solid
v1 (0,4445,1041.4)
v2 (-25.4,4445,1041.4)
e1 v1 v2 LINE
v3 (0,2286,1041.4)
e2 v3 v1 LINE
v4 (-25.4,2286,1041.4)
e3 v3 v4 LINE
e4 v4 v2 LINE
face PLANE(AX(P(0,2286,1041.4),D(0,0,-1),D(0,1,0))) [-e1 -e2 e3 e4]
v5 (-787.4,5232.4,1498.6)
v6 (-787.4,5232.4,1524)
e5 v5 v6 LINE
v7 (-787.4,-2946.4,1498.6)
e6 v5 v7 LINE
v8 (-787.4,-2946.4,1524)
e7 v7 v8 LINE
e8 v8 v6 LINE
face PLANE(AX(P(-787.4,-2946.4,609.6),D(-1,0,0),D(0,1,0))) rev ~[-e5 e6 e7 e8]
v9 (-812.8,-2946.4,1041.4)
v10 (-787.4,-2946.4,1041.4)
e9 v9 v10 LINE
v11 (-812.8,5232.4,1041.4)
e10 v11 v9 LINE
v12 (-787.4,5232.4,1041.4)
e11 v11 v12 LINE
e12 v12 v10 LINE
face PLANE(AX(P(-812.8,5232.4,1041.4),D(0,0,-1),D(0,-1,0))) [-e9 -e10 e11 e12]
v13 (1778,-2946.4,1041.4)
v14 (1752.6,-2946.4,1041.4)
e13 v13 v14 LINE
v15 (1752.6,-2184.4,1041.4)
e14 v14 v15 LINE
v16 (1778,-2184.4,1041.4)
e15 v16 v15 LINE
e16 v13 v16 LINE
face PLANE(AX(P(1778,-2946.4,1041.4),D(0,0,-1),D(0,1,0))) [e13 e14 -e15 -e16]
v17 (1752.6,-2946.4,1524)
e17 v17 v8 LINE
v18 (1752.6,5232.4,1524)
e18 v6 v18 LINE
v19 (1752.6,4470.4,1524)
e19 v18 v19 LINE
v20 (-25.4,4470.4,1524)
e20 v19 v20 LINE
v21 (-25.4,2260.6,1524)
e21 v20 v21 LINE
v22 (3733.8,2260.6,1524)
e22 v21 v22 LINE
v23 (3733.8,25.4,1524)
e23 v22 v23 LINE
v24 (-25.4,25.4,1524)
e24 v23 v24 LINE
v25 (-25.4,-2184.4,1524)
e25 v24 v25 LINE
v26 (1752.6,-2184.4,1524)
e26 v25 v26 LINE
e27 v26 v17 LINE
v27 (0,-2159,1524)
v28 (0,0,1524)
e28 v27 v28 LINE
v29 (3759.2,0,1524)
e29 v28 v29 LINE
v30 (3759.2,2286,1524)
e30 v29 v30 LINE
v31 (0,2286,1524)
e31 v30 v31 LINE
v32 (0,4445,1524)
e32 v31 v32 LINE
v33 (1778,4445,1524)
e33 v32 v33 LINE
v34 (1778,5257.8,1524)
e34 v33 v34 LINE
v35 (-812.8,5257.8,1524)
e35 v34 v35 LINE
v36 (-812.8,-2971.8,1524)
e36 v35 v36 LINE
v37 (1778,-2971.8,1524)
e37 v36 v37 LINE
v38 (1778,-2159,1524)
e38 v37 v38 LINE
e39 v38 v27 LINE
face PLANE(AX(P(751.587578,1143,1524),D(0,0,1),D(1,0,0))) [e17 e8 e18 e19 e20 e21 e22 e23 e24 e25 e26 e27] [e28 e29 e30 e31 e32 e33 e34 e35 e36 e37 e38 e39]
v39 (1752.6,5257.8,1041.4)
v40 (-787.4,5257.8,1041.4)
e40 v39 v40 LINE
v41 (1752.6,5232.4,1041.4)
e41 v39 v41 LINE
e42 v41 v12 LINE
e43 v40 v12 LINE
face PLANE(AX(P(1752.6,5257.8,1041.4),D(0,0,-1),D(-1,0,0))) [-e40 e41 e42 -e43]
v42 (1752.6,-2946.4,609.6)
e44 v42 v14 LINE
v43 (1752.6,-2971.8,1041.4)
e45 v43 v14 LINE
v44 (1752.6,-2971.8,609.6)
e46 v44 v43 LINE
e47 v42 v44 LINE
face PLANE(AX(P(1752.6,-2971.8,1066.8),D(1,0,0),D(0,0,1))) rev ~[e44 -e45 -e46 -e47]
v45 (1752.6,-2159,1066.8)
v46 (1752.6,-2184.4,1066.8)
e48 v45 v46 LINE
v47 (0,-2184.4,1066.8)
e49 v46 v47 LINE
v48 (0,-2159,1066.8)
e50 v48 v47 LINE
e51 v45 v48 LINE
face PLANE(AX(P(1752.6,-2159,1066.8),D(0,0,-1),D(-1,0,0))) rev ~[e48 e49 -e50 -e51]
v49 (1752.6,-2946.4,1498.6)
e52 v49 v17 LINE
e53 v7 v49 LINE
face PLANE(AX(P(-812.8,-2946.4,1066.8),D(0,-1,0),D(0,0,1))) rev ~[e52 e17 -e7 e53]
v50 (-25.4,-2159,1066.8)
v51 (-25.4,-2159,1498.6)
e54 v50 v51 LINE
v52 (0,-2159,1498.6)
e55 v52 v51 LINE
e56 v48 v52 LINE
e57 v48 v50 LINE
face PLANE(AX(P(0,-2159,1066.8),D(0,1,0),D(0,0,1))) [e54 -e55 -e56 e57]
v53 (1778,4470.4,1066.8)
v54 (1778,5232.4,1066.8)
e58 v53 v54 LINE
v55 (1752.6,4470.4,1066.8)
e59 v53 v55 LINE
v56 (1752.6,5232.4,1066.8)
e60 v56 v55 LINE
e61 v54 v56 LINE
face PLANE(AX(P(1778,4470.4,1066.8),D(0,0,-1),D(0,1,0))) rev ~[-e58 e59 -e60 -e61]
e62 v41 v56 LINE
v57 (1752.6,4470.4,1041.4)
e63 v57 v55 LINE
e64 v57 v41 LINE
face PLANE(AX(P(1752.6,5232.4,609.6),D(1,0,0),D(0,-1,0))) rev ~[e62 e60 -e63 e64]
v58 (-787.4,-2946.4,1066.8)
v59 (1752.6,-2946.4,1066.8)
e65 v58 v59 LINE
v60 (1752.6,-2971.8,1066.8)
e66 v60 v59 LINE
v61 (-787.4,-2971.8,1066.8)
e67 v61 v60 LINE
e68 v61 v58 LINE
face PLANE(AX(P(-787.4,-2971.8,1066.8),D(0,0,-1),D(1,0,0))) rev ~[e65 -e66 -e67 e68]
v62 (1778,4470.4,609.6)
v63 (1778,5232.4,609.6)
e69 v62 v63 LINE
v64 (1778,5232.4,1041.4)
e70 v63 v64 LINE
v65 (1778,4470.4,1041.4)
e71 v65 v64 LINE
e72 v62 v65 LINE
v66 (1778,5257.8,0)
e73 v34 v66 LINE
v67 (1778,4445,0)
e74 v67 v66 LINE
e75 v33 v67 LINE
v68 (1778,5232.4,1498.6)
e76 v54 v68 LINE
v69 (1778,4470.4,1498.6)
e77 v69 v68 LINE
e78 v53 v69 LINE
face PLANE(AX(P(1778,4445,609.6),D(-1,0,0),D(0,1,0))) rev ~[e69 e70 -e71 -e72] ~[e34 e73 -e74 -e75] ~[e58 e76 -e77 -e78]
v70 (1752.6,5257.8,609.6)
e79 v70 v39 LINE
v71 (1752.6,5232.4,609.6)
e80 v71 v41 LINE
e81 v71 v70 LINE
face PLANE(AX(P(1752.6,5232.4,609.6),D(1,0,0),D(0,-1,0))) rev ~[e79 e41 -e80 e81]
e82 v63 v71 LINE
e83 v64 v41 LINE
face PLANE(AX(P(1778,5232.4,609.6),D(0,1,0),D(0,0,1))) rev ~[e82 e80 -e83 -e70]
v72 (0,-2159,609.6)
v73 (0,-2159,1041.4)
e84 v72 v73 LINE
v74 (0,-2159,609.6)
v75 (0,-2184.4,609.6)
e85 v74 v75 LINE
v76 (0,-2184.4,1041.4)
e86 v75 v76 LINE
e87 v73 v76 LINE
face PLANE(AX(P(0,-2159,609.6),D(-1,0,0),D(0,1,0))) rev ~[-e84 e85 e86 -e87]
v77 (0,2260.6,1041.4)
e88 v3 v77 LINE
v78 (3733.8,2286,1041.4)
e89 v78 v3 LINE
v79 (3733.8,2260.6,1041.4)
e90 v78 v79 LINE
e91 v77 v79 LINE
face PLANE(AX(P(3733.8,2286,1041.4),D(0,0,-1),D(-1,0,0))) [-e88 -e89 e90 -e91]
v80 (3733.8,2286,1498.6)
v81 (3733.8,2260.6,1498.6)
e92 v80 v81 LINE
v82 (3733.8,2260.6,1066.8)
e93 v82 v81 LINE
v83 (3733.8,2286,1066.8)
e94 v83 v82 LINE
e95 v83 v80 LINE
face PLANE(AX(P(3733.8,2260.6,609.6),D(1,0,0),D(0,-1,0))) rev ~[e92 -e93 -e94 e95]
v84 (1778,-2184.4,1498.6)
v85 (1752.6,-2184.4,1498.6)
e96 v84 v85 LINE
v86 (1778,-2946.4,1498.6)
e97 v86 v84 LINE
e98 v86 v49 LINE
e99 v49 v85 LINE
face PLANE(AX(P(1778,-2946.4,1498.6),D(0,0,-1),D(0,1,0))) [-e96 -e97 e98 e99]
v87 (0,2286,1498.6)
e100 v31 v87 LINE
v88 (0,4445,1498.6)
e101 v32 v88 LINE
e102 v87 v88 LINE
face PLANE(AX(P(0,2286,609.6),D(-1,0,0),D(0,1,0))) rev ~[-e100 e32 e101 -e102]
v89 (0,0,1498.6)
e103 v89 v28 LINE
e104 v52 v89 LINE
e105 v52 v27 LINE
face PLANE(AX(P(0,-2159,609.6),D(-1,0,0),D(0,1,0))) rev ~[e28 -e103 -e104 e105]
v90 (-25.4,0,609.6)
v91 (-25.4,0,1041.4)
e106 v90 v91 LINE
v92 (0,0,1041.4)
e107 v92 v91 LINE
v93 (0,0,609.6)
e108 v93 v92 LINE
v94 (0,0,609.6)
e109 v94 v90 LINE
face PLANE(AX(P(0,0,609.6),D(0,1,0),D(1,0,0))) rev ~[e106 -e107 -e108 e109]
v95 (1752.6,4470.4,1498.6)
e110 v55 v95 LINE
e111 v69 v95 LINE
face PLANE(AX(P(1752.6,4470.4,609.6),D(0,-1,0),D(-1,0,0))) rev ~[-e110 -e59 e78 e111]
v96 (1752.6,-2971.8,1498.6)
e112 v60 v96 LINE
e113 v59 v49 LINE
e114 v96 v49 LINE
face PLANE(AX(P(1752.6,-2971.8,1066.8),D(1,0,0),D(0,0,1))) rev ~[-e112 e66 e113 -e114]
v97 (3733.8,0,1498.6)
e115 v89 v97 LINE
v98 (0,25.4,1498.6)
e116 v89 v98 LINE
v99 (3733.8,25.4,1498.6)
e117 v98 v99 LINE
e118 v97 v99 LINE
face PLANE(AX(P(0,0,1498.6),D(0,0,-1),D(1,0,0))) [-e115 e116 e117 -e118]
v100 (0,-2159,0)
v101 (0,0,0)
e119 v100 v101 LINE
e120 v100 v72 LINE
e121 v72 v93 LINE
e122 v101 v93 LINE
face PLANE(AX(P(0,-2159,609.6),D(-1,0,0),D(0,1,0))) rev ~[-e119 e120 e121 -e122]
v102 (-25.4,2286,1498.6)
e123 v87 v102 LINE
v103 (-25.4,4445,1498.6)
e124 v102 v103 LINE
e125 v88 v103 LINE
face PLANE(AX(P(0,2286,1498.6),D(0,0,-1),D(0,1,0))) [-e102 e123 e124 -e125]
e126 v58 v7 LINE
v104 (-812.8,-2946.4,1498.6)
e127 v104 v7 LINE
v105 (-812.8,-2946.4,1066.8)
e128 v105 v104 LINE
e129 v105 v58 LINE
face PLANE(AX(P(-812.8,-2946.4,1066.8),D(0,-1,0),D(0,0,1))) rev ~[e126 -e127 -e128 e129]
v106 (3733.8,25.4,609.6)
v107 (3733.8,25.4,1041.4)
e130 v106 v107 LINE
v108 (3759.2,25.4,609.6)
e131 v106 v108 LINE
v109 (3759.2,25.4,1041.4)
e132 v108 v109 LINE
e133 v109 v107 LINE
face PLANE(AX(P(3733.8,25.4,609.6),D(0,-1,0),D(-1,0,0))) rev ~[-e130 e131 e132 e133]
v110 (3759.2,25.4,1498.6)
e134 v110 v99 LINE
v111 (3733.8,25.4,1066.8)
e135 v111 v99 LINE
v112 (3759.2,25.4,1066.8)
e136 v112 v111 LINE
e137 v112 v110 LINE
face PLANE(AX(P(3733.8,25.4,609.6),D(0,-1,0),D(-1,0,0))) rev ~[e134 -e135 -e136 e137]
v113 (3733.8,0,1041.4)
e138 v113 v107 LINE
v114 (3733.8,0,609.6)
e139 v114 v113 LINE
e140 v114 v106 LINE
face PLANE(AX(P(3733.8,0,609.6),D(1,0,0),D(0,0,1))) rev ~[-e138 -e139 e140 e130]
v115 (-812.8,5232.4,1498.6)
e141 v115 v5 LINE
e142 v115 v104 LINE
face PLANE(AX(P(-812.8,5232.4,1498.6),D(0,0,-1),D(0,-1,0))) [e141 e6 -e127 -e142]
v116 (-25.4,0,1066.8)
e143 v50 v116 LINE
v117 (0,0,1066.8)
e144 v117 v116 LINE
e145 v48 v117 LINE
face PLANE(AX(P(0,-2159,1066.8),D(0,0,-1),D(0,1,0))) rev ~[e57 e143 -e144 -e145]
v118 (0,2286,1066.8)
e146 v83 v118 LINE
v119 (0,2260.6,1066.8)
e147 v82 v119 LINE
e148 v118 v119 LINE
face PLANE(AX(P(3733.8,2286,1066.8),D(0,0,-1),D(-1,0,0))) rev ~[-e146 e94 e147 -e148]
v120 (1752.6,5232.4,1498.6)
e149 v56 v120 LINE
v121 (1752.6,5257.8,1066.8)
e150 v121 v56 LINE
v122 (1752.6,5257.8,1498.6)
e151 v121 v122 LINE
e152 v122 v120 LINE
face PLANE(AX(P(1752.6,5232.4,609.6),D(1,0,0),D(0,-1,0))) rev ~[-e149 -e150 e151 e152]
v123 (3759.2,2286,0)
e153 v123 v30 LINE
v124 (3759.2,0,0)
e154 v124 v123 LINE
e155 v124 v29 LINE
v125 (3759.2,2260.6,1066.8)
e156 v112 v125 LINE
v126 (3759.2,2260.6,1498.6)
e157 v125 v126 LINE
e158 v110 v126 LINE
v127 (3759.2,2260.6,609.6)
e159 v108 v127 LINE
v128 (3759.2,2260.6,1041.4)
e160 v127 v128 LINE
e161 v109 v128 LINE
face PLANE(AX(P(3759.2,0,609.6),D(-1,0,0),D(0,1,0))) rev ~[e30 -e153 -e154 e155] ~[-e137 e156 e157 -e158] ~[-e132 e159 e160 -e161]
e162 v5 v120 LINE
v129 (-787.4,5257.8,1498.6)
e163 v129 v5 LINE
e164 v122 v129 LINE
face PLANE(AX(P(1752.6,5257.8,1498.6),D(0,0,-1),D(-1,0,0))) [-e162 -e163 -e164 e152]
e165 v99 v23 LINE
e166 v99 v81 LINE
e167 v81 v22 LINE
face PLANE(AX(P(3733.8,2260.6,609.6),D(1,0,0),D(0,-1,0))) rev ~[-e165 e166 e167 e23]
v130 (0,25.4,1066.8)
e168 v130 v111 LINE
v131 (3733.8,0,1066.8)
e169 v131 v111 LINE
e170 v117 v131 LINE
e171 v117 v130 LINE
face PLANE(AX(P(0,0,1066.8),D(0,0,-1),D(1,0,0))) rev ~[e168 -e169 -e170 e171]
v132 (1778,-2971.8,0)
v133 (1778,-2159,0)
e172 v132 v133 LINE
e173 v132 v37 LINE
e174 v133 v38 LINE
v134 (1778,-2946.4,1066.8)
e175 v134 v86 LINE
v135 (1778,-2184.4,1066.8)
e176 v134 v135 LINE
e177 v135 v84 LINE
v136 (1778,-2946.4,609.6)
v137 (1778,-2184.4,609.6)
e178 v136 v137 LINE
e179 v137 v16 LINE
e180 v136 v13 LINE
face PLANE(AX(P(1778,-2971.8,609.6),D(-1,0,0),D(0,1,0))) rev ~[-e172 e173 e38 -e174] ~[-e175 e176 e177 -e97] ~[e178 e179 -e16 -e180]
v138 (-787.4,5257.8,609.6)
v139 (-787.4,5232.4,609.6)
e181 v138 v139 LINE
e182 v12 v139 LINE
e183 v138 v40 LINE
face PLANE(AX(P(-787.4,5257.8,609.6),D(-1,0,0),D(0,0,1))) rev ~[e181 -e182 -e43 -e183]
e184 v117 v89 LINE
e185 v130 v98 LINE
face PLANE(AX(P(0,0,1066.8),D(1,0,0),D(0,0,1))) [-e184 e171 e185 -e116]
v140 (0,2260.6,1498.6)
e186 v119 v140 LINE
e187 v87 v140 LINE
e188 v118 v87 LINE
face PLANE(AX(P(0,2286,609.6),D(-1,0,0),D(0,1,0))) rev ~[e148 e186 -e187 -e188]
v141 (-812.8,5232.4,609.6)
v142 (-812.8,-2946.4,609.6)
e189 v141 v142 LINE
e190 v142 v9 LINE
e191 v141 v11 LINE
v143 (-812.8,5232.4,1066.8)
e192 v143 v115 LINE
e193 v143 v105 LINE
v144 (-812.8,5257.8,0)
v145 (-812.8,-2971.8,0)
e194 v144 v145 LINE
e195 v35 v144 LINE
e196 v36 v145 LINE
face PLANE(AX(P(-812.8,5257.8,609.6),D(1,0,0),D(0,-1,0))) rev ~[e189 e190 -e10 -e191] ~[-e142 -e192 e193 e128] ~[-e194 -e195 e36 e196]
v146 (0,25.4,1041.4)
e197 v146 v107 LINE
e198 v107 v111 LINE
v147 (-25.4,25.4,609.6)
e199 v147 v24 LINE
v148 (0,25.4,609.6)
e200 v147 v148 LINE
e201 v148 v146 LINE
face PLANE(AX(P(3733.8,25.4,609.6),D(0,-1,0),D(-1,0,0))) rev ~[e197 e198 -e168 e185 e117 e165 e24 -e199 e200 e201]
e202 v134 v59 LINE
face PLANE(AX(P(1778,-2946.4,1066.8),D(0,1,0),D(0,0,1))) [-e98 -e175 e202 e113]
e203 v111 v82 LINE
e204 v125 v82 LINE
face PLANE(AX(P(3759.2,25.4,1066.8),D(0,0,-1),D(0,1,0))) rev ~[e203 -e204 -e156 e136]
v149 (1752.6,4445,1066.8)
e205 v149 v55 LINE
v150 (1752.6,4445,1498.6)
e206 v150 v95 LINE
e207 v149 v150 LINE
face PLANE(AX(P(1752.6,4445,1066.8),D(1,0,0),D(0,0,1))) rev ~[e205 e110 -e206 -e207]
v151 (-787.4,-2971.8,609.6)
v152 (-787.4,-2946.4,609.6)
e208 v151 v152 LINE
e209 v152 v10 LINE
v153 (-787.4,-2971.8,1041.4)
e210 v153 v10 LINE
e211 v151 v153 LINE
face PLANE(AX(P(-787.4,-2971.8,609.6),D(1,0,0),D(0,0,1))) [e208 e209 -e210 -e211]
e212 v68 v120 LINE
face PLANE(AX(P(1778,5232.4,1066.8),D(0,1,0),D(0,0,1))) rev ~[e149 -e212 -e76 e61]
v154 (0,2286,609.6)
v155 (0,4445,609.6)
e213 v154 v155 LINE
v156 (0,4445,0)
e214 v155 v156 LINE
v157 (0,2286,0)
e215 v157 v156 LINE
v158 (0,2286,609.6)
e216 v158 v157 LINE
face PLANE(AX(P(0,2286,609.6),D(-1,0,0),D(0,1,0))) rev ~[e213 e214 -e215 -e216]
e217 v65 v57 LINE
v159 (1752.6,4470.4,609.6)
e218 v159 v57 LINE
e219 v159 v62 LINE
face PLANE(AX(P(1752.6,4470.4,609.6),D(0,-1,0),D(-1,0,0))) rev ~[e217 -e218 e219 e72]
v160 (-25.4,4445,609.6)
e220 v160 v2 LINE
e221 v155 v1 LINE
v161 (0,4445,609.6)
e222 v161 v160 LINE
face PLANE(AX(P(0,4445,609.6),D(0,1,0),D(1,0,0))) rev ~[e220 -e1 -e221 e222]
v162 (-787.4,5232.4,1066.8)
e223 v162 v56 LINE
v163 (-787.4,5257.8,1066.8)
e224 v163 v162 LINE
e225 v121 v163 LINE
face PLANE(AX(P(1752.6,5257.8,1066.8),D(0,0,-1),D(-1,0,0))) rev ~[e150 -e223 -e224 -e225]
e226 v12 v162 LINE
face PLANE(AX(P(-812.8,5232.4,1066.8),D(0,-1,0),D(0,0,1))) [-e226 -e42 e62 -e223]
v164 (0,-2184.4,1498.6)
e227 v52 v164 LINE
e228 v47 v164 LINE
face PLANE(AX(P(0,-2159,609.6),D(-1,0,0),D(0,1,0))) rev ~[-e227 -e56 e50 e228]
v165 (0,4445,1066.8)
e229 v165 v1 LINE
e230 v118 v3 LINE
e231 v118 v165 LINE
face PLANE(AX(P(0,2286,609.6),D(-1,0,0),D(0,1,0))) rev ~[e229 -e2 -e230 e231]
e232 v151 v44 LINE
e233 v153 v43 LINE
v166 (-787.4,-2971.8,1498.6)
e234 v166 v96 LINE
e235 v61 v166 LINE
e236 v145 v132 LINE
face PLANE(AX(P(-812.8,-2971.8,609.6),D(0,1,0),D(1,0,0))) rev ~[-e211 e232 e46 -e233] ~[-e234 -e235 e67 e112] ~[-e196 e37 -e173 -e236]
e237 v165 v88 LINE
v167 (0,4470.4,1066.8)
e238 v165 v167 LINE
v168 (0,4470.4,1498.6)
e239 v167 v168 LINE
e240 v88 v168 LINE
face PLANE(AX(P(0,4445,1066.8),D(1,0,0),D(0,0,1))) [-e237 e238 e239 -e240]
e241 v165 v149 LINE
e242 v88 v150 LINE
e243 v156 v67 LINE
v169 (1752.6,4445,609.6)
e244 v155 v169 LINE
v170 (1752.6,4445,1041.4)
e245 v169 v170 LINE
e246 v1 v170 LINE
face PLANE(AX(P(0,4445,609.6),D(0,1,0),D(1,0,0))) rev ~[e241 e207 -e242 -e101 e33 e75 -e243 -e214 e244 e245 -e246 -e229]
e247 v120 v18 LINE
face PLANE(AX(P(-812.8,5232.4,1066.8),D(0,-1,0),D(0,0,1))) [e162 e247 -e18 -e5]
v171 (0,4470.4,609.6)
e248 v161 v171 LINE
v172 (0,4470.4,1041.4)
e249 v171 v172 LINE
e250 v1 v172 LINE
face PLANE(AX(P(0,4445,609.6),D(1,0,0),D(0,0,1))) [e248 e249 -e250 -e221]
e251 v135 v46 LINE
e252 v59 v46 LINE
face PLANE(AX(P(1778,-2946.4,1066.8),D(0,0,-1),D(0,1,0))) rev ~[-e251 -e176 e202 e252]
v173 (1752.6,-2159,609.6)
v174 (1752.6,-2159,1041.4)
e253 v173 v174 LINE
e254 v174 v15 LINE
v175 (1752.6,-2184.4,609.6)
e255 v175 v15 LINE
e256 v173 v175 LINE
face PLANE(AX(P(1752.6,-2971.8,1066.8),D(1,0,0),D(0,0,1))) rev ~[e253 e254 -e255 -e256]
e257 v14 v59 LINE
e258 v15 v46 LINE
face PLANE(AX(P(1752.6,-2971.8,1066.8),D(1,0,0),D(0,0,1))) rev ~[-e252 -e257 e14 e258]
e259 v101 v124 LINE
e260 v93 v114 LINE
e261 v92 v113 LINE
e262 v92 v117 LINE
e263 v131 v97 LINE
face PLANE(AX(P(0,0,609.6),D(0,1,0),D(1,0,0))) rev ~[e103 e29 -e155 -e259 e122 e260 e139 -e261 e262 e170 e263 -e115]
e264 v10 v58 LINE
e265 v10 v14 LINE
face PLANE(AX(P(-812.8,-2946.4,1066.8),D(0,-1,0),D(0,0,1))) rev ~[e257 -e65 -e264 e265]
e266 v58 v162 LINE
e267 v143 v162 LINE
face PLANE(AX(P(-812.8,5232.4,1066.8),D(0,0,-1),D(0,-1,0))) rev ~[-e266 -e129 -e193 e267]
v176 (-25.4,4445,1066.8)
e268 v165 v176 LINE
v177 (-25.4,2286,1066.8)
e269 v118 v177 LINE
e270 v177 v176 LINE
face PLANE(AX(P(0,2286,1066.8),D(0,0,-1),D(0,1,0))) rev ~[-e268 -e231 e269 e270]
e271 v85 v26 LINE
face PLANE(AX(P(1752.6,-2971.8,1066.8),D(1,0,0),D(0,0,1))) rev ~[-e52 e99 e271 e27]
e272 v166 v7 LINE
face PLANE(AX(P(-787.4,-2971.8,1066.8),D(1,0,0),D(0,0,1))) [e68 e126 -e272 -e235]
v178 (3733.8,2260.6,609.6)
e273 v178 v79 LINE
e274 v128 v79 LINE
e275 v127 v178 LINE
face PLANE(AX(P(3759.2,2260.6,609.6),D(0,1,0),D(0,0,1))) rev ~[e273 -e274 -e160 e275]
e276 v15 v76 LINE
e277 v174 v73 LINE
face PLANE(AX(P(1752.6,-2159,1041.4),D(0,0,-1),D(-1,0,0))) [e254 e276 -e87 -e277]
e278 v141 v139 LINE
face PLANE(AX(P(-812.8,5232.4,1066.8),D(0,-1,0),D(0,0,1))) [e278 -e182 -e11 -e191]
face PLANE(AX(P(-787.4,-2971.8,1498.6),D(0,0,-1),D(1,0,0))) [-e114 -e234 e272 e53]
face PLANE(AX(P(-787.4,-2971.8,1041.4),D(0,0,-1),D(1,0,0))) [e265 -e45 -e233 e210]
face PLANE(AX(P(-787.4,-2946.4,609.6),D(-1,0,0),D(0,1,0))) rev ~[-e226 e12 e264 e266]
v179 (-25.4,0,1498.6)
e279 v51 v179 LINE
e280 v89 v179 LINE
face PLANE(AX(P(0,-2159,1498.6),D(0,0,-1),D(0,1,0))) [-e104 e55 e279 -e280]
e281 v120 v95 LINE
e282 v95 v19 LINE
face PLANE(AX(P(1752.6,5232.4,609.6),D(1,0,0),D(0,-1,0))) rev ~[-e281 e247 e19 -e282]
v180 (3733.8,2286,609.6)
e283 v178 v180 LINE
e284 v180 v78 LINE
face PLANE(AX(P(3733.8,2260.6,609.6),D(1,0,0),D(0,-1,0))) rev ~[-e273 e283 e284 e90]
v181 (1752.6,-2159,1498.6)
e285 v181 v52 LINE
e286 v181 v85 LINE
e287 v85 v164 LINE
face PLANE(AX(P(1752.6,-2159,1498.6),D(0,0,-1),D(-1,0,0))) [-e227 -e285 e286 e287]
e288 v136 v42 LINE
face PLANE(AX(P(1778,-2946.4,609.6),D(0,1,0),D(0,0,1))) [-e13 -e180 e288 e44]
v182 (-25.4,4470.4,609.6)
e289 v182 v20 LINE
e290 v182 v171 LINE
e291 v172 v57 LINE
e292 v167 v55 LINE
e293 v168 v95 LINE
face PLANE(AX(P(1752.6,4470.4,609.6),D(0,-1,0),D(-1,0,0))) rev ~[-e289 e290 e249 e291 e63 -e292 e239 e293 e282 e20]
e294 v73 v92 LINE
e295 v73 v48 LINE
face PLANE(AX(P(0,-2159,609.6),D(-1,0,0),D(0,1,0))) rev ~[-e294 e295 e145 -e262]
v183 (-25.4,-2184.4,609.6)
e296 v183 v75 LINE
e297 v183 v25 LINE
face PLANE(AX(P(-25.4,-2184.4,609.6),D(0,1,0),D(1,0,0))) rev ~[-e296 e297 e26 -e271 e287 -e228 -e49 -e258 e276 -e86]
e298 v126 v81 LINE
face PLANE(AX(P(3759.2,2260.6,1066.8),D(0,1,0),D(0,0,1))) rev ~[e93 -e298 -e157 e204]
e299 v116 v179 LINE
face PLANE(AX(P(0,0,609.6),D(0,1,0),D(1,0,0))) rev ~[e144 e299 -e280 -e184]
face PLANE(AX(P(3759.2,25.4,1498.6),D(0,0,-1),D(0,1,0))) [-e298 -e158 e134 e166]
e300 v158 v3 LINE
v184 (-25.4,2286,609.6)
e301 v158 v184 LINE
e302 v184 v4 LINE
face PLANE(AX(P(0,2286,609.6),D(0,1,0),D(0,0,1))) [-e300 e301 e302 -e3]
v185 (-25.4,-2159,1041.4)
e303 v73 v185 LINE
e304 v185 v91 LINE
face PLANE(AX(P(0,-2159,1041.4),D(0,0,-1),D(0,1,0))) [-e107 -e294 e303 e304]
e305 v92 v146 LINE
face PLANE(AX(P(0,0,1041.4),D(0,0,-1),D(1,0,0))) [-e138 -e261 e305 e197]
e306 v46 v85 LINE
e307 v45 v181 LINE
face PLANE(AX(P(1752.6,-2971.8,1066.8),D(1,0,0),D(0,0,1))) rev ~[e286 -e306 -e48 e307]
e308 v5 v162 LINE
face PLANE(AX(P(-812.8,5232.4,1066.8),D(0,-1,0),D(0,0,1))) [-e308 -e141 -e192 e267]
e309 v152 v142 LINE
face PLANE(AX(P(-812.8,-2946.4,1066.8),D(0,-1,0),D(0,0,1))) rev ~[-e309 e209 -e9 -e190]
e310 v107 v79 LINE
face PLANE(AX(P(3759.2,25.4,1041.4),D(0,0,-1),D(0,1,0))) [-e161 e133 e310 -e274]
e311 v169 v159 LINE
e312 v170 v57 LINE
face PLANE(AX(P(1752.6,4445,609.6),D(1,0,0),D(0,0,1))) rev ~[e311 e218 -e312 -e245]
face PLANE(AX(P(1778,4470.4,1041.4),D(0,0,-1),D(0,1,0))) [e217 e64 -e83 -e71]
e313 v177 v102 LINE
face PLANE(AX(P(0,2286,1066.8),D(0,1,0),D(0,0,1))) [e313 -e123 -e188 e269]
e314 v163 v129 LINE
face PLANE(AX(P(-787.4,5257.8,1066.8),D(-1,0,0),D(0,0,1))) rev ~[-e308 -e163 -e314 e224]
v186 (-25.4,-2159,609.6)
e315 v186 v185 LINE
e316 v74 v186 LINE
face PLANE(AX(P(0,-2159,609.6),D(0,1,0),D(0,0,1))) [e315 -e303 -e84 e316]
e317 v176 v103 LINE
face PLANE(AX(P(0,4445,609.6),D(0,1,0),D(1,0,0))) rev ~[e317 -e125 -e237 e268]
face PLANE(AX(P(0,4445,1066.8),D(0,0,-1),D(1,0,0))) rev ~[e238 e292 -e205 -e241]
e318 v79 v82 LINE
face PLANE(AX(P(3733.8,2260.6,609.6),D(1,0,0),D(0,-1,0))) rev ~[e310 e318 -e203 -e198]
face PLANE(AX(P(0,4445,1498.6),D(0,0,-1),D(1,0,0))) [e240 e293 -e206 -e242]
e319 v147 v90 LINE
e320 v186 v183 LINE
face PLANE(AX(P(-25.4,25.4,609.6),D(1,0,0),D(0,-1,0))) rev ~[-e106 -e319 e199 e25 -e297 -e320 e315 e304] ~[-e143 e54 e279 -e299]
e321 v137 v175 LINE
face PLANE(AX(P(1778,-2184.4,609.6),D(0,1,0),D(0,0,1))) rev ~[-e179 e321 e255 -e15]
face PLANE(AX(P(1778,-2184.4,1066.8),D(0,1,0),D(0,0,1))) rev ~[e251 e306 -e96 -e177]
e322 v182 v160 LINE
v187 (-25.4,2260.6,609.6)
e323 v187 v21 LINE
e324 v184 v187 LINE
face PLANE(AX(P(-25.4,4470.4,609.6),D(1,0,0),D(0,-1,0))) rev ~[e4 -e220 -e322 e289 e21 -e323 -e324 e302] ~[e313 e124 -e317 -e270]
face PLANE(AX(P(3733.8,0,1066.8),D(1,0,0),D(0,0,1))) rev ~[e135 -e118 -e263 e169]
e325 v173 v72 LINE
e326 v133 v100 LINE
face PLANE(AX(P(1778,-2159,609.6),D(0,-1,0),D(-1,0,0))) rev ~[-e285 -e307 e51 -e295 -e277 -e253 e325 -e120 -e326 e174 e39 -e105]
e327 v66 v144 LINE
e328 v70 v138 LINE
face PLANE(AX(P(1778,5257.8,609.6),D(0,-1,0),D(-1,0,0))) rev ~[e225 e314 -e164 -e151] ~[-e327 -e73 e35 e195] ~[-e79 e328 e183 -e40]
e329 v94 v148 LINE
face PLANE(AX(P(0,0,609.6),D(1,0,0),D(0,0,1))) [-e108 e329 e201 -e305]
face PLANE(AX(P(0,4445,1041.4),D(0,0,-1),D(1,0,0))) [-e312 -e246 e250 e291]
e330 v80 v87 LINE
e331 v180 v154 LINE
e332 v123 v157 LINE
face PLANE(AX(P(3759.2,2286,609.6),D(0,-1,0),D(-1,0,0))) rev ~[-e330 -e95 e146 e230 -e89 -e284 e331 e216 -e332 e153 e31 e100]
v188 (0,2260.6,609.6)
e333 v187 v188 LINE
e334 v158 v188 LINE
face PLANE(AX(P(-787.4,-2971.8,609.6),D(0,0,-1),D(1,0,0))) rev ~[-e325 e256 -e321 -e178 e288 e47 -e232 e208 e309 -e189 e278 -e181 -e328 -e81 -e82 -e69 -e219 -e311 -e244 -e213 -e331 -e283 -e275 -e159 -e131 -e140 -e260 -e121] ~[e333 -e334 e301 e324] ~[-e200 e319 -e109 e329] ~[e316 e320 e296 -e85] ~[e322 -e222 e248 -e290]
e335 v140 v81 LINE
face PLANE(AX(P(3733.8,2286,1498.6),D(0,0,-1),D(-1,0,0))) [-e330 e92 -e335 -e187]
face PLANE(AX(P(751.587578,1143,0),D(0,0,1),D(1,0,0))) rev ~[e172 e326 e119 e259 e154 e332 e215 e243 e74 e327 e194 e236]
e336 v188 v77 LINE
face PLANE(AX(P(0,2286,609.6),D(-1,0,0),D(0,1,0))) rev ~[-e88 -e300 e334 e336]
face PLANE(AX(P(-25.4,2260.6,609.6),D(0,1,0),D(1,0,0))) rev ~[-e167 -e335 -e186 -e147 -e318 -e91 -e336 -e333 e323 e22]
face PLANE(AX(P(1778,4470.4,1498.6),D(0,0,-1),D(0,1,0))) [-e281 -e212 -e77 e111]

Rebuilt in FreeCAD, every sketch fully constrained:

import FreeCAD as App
import Part
import Sketcher
from FreeCAD import Vector
Q = App.Units.Quantity


def add_polygon(sketch, points):
    """Adds a closed chain of lines whose ends are joined by coincident constraints."""
    first, n = sketch.GeometryCount, len(points)
    for a, b in zip(points, points[1:] + points[:1]):
        sketch.addGeometry(Part.LineSegment(App.Vector(*a, 0), App.Vector(*b, 0)), False)
    for i in range(n):
        sketch.addConstraint(Sketcher.Constraint("Coincident", first + i, 2, first + (i + 1) % n, 1))

doc = App.newDocument("Part")
body = doc.addObject("PartDesign::Body", "Body")

sketch1 = body.newObject("Sketcher::SketchObject", "Sketch")
sketch1.AttachmentSupport = (doc.getObject("XY_Plane"), [""])
sketch1.MapMode = "FlatFace"
add_polygon(sketch1, [(0, -2159), (0, 0), (3759.2, 0), (3759.2, 2286), (0, 2286), (0, 4445), (1778, 4445), (1778, 5257.8), (-812.8, 5257.8), (-812.8, -2971.8), (1778, -2971.8), (1778, -2159)])
sketch1.addConstraint(Sketcher.Constraint("Vertical", 0))
sketch1.addConstraint(Sketcher.Constraint("Horizontal", 1))
sketch1.addConstraint(Sketcher.Constraint("Vertical", 2))
sketch1.addConstraint(Sketcher.Constraint("Horizontal", 3))
sketch1.addConstraint(Sketcher.Constraint("Vertical", 4))
sketch1.addConstraint(Sketcher.Constraint("Horizontal", 5))
sketch1.addConstraint(Sketcher.Constraint("Vertical", 6))
sketch1.addConstraint(Sketcher.Constraint("Horizontal", 7))
sketch1.addConstraint(Sketcher.Constraint("Vertical", 8))
sketch1.addConstraint(Sketcher.Constraint("Horizontal", 9))
sketch1.addConstraint(Sketcher.Constraint("Vertical", 10))
sketch1.addConstraint(Sketcher.Constraint("Horizontal", 11))
sketch1.addConstraint(Sketcher.Constraint("Coincident", 0, 2, -1, 1))
sketch1.addConstraint(Sketcher.Constraint("PointOnObject", 3, 2, -2))
sketch1.addConstraint(Sketcher.Constraint("Vertical", 6, 2, 9, 2))
sketch1.addConstraint(Sketcher.Constraint("Equal", 0, 4))
sketch1.addConstraint(Sketcher.Constraint("Equal", 6, 10))
sketch1.addConstraint(Sketcher.Constraint("DistanceX", 1, 1, 1, 2, Q("148 in")))
sketch1.addConstraint(Sketcher.Constraint("DistanceX", 5, 1, 5, 2, Q("70 in")))
sketch1.addConstraint(Sketcher.Constraint("DistanceX", 7, 2, 7, 1, Q("102 in")))
sketch1.addConstraint(Sketcher.Constraint("DistanceY", 0, 1, 0, 2, Q("85 in")))
sketch1.addConstraint(Sketcher.Constraint("DistanceY", 2, 1, 2, 2, Q("90 in")))
sketch1.addConstraint(Sketcher.Constraint("DistanceY", 6, 1, 6, 2, Q("32 in")))
pad1 = body.newObject("PartDesign::Pad", "Pad")
pad1.Profile = sketch1
pad1.Length = Q("24 in")

sketch2 = body.newObject("Sketcher::SketchObject", "Sketch001")
sketch2.AttachmentSupport = (doc.getObject("XY_Plane"), [""])
sketch2.MapMode = "FlatFace"
sketch2.AttachmentOffset = App.Placement(Vector(0, 0, 24 * 25.4), App.Rotation())
add_polygon(sketch2, [(-812.8, -2971.8), (1778, -2971.8), (1778, -2159), (0, -2159), (0, 0), (3759.2, 0), (3759.2, 2286), (0, 2286), (0, 4445), (1778, 4445), (1778, 5257.8), (-812.8, 5257.8)])
add_polygon(sketch2, [(1752.6, -2184.4), (1752.6, -2946.4), (-787.4, -2946.4), (-787.4, 5232.4), (1752.6, 5232.4), (1752.6, 4470.4), (-25.4, 4470.4), (-25.4, 2260.6), (3733.8, 2260.6), (3733.8, 25.4), (-25.4, 25.4), (-25.4, -2184.4)])
sketch2.addConstraint(Sketcher.Constraint("Horizontal", 0))
sketch2.addConstraint(Sketcher.Constraint("Vertical", 1))
sketch2.addConstraint(Sketcher.Constraint("Horizontal", 2))
sketch2.addConstraint(Sketcher.Constraint("Vertical", 3))
sketch2.addConstraint(Sketcher.Constraint("Horizontal", 4))
sketch2.addConstraint(Sketcher.Constraint("Vertical", 5))
sketch2.addConstraint(Sketcher.Constraint("Horizontal", 6))
sketch2.addConstraint(Sketcher.Constraint("Vertical", 7))
sketch2.addConstraint(Sketcher.Constraint("Horizontal", 8))
sketch2.addConstraint(Sketcher.Constraint("Vertical", 9))
sketch2.addConstraint(Sketcher.Constraint("Horizontal", 10))
sketch2.addConstraint(Sketcher.Constraint("Vertical", 11))
sketch2.addConstraint(Sketcher.Constraint("Vertical", 12))
sketch2.addConstraint(Sketcher.Constraint("Horizontal", 13))
sketch2.addConstraint(Sketcher.Constraint("Vertical", 14))
sketch2.addConstraint(Sketcher.Constraint("Horizontal", 15))
sketch2.addConstraint(Sketcher.Constraint("Vertical", 16))
sketch2.addConstraint(Sketcher.Constraint("Horizontal", 17))
sketch2.addConstraint(Sketcher.Constraint("Vertical", 18))
sketch2.addConstraint(Sketcher.Constraint("Horizontal", 19))
sketch2.addConstraint(Sketcher.Constraint("Vertical", 20))
sketch2.addConstraint(Sketcher.Constraint("Horizontal", 21))
sketch2.addConstraint(Sketcher.Constraint("Vertical", 22))
sketch2.addConstraint(Sketcher.Constraint("Horizontal", 23))
sketch2.addConstraint(Sketcher.Constraint("Coincident", 3, 2, -1, 1))
sketch2.addConstraint(Sketcher.Constraint("PointOnObject", 6, 2, -2))
sketch2.addConstraint(Sketcher.Constraint("Vertical", 1, 2, 8, 2))
sketch2.addConstraint(Sketcher.Constraint("Vertical", 12, 2, 15, 2))
sketch2.addConstraint(Sketcher.Constraint("Vertical", 18, 2, 21, 2))
sketch2.addConstraint(Sketcher.Constraint("Equal", 8, 17))
sketch2.addConstraint(Sketcher.Constraint("Equal", 6, 19))
sketch2.addConstraint(Sketcher.Constraint("Equal", 3, 7))
sketch2.addConstraint(Sketcher.Constraint("Equal", 1, 9))
sketch2.addConstraint(Sketcher.Constraint("Equal", 12, 16))
sketch2.addConstraint(Sketcher.Constraint("Equal", 18, 22))
sketch2.addConstraint(Sketcher.Constraint("DistanceX", 0, 1, 0, 2, Q("102 in")))
sketch2.addConstraint(Sketcher.Constraint("DistanceX", 2, 2, 2, 1, Q("70 in")))
sketch2.addConstraint(Sketcher.Constraint("DistanceX", 4, 1, 4, 2, Q("148 in")))
sketch2.addConstraint(Sketcher.Constraint("DistanceX", 13, 2, 13, 1, Q("100 in")))
sketch2.addConstraint(Sketcher.Constraint("DistanceY", 1, 1, 1, 2, Q("32 in")))
sketch2.addConstraint(Sketcher.Constraint("DistanceY", 3, 1, 3, 2, Q("85 in")))
sketch2.addConstraint(Sketcher.Constraint("DistanceY", 5, 1, 5, 2, Q("90 in")))
sketch2.addConstraint(Sketcher.Constraint("DistanceY", 12, 2, 12, 1, Q("30 in")))
sketch2.addConstraint(Sketcher.Constraint("DistanceY", 14, 1, 14, 2, Q("322 in")))
sketch2.addConstraint(Sketcher.Constraint("DistanceY", 18, 2, 18, 1, Q("87 in")))
sketch2.addConstraint(Sketcher.Constraint("DistanceX", -1, 1, 12, 2, Q("69 in")))
sketch2.addConstraint(Sketcher.Constraint("DistanceY", 12, 2, -1, 1, Q("116 in")))
pad2 = body.newObject("PartDesign::Pad", "Pad001")
pad2.Profile = sketch2
pad2.Length = Q("36 in")

sketch3 = body.newObject("Sketcher::SketchObject", "Sketch002")
sketch3.AttachmentSupport = (doc.getObject("YZ_Plane"), [""])
sketch3.MapMode = "FlatFace"
sketch3.AttachmentOffset = App.Placement(Vector(0, 0, -32 * 25.4), App.Rotation())
add_polygon(sketch3, [(5232.4, 1498.6), (5232.4, 1066.8), (-2946.4, 1066.8), (-2946.4, 1498.6)])
add_polygon(sketch3, [(5232.4, 1041.4), (5232.4, 609.6), (-2946.4, 609.6), (-2946.4, 1041.4)])
sketch3.addConstraint(Sketcher.Constraint("Vertical", 0))
sketch3.addConstraint(Sketcher.Constraint("Horizontal", 1))
sketch3.addConstraint(Sketcher.Constraint("Vertical", 2))
sketch3.addConstraint(Sketcher.Constraint("Horizontal", 3))
sketch3.addConstraint(Sketcher.Constraint("Vertical", 4))
sketch3.addConstraint(Sketcher.Constraint("Horizontal", 5))
sketch3.addConstraint(Sketcher.Constraint("Vertical", 6))
sketch3.addConstraint(Sketcher.Constraint("Horizontal", 7))
sketch3.addConstraint(Sketcher.Constraint("Vertical", 3, 2, 4, 2))
sketch3.addConstraint(Sketcher.Constraint("Vertical", 2, 2, 5, 2))
sketch3.addConstraint(Sketcher.Constraint("Equal", 2, 4))
sketch3.addConstraint(Sketcher.Constraint("DistanceX", 1, 2, 1, 1, Q("322 in")))
sketch3.addConstraint(Sketcher.Constraint("DistanceY", 0, 2, 0, 1, Q("17 in")))
sketch3.addConstraint(Sketcher.Constraint("DistanceX", -1, 1, 0, 2, Q("206 in")))
sketch3.addConstraint(Sketcher.Constraint("DistanceY", -1, 1, 0, 2, Q("42 in")))
sketch3.addConstraint(Sketcher.Constraint("DistanceY", -1, 1, 4, 2, Q("24 in")))
pocket1 = body.newObject("PartDesign::Pocket", "Pocket")
pocket1.Profile = sketch3
pocket1.Length = Q("2 in")
pocket1.Reversed = True

sketch4 = body.newObject("Sketcher::SketchObject", "Sketch003")
sketch4.AttachmentSupport = (doc.getObject("XZ_Plane"), [""])
sketch4.MapMode = "FlatFace"
sketch4.AttachmentOffset = App.Placement(Vector(0, 0, 117 * 25.4), App.Rotation())
add_polygon(sketch4, [(-787.4, 1498.6), (-787.4, 1066.8), (1752.6, 1066.8), (1752.6, 1498.6)])
add_polygon(sketch4, [(-787.4, 1041.4), (-787.4, 609.6), (1752.6, 609.6), (1752.6, 1041.4)])
sketch4.addConstraint(Sketcher.Constraint("Vertical", 0))
sketch4.addConstraint(Sketcher.Constraint("Horizontal", 1))
sketch4.addConstraint(Sketcher.Constraint("Vertical", 2))
sketch4.addConstraint(Sketcher.Constraint("Horizontal", 3))
sketch4.addConstraint(Sketcher.Constraint("Vertical", 4))
sketch4.addConstraint(Sketcher.Constraint("Horizontal", 5))
sketch4.addConstraint(Sketcher.Constraint("Vertical", 6))
sketch4.addConstraint(Sketcher.Constraint("Horizontal", 7))
sketch4.addConstraint(Sketcher.Constraint("Vertical", 3, 2, 4, 2))
sketch4.addConstraint(Sketcher.Constraint("Vertical", 2, 2, 5, 2))
sketch4.addConstraint(Sketcher.Constraint("Equal", 2, 4))
sketch4.addConstraint(Sketcher.Constraint("DistanceX", 1, 1, 1, 2, Q("100 in")))
sketch4.addConstraint(Sketcher.Constraint("DistanceY", 0, 2, 0, 1, Q("17 in")))
sketch4.addConstraint(Sketcher.Constraint("DistanceX", 0, 2, -1, 1, Q("31 in")))
sketch4.addConstraint(Sketcher.Constraint("DistanceY", -1, 1, 0, 2, Q("42 in")))
sketch4.addConstraint(Sketcher.Constraint("DistanceY", -1, 1, 4, 2, Q("24 in")))
pocket2 = body.newObject("PartDesign::Pocket", "Pocket001")
pocket2.Profile = sketch4
pocket2.Length = Q("3 in")

sketch5 = body.newObject("Sketcher::SketchObject", "Sketch004")
sketch5.AttachmentSupport = (doc.getObject("XZ_Plane"), [""])
sketch5.MapMode = "FlatFace"
sketch5.AttachmentOffset = App.Placement(Vector(0, 0, -90 * 25.4), App.Rotation())
add_polygon(sketch5, [(3733.8, 1498.6), (3733.8, 1066.8), (0, 1066.8), (0, 1498.6)])
add_polygon(sketch5, [(3733.8, 1041.4), (3733.8, 609.6), (0, 609.6), (0, 1041.4)])
sketch5.addConstraint(Sketcher.Constraint("Vertical", 0))
sketch5.addConstraint(Sketcher.Constraint("Horizontal", 1))
sketch5.addConstraint(Sketcher.Constraint("Vertical", 2))
sketch5.addConstraint(Sketcher.Constraint("Horizontal", 3))
sketch5.addConstraint(Sketcher.Constraint("Vertical", 4))
sketch5.addConstraint(Sketcher.Constraint("Horizontal", 5))
sketch5.addConstraint(Sketcher.Constraint("Vertical", 6))
sketch5.addConstraint(Sketcher.Constraint("Horizontal", 7))
sketch5.addConstraint(Sketcher.Constraint("PointOnObject", 1, 2, -2))
sketch5.addConstraint(Sketcher.Constraint("PointOnObject", 5, 2, -2))
sketch5.addConstraint(Sketcher.Constraint("Vertical", 3, 2, 4, 2))
sketch5.addConstraint(Sketcher.Constraint("Equal", 2, 4))
sketch5.addConstraint(Sketcher.Constraint("DistanceX", 1, 2, 1, 1, Q("147 in")))
sketch5.addConstraint(Sketcher.Constraint("DistanceY", 0, 2, 0, 1, Q("17 in")))
sketch5.addConstraint(Sketcher.Constraint("DistanceY", -1, 1, 0, 2, Q("42 in")))
sketch5.addConstraint(Sketcher.Constraint("DistanceY", -1, 1, 4, 2, Q("24 in")))
pocket3 = body.newObject("PartDesign::Pocket", "Pocket002")
pocket3.Profile = sketch5
pocket3.Length = Q("3 in")
pocket3.Reversed = True

sketch6 = body.newObject("Sketcher::SketchObject", "Sketch005")
sketch6.AttachmentSupport = (doc.getObject("YZ_Plane"), [""])
sketch6.MapMode = "FlatFace"
sketch6.AttachmentOffset = App.Placement(Vector(0, 0, 148 * 25.4), App.Rotation())
add_polygon(sketch6, [(25.4, 1498.6), (25.4, 1066.8), (2260.6, 1066.8), (2260.6, 1498.6)])
add_polygon(sketch6, [(25.4, 1041.4), (25.4, 609.6), (2260.6, 609.6), (2260.6, 1041.4)])
sketch6.addConstraint(Sketcher.Constraint("Vertical", 0))
sketch6.addConstraint(Sketcher.Constraint("Horizontal", 1))
sketch6.addConstraint(Sketcher.Constraint("Vertical", 2))
sketch6.addConstraint(Sketcher.Constraint("Horizontal", 3))
sketch6.addConstraint(Sketcher.Constraint("Vertical", 4))
sketch6.addConstraint(Sketcher.Constraint("Horizontal", 5))
sketch6.addConstraint(Sketcher.Constraint("Vertical", 6))
sketch6.addConstraint(Sketcher.Constraint("Horizontal", 7))
sketch6.addConstraint(Sketcher.Constraint("Vertical", 3, 2, 4, 2))
sketch6.addConstraint(Sketcher.Constraint("Vertical", 2, 2, 5, 2))
sketch6.addConstraint(Sketcher.Constraint("Equal", 2, 4))
sketch6.addConstraint(Sketcher.Constraint("DistanceX", 1, 1, 1, 2, Q("88 in")))
sketch6.addConstraint(Sketcher.Constraint("DistanceY", 0, 2, 0, 1, Q("17 in")))
sketch6.addConstraint(Sketcher.Constraint("DistanceX", -1, 1, 0, 2, Q("1 in")))
sketch6.addConstraint(Sketcher.Constraint("DistanceY", -1, 1, 0, 2, Q("42 in")))
sketch6.addConstraint(Sketcher.Constraint("DistanceY", -1, 1, 4, 2, Q("24 in")))
pocket4 = body.newObject("PartDesign::Pocket", "Pocket003")
pocket4.Profile = sketch6
pocket4.Length = Q("3 in")

sketch7 = body.newObject("Sketcher::SketchObject", "Sketch006")
sketch7.AttachmentSupport = (doc.getObject("XZ_Plane"), [""])
sketch7.MapMode = "FlatFace"
sketch7.AttachmentOffset = App.Placement(Vector(0, 0, -207 * 25.4), App.Rotation())
add_polygon(sketch7, [(1752.6, 1498.6), (1752.6, 1066.8), (-787.4, 1066.8), (-787.4, 1498.6)])
add_polygon(sketch7, [(1752.6, 1041.4), (1752.6, 609.6), (-787.4, 609.6), (-787.4, 1041.4)])
sketch7.addConstraint(Sketcher.Constraint("Vertical", 0))
sketch7.addConstraint(Sketcher.Constraint("Horizontal", 1))
sketch7.addConstraint(Sketcher.Constraint("Vertical", 2))
sketch7.addConstraint(Sketcher.Constraint("Horizontal", 3))
sketch7.addConstraint(Sketcher.Constraint("Vertical", 4))
sketch7.addConstraint(Sketcher.Constraint("Horizontal", 5))
sketch7.addConstraint(Sketcher.Constraint("Vertical", 6))
sketch7.addConstraint(Sketcher.Constraint("Horizontal", 7))
sketch7.addConstraint(Sketcher.Constraint("Vertical", 3, 2, 4, 2))
sketch7.addConstraint(Sketcher.Constraint("Vertical", 2, 2, 5, 2))
sketch7.addConstraint(Sketcher.Constraint("Equal", 2, 4))
sketch7.addConstraint(Sketcher.Constraint("DistanceX", 1, 2, 1, 1, Q("100 in")))
sketch7.addConstraint(Sketcher.Constraint("DistanceY", 0, 2, 0, 1, Q("17 in")))
sketch7.addConstraint(Sketcher.Constraint("DistanceX", -1, 1, 0, 2, Q("69 in")))
sketch7.addConstraint(Sketcher.Constraint("DistanceY", -1, 1, 0, 2, Q("42 in")))
sketch7.addConstraint(Sketcher.Constraint("DistanceY", -1, 1, 4, 2, Q("24 in")))
pocket5 = body.newObject("PartDesign::Pocket", "Pocket004")
pocket5.Profile = sketch7
pocket5.Length = Q("3 in")
pocket5.Reversed = True

sketch8 = body.newObject("Sketcher::SketchObject", "Sketch007")
sketch8.AttachmentSupport = (doc.getObject("YZ_Plane"), [""])
sketch8.MapMode = "FlatFace"
sketch8.AttachmentOffset = App.Placement(Vector(0, 0, 70 * 25.4), App.Rotation())
add_polygon(sketch8, [(4470.4, 1498.6), (4470.4, 1066.8), (5232.4, 1066.8), (5232.4, 1498.6)])
add_polygon(sketch8, [(4470.4, 1041.4), (4470.4, 609.6), (5232.4, 609.6), (5232.4, 1041.4)])
sketch8.addConstraint(Sketcher.Constraint("Vertical", 0))
sketch8.addConstraint(Sketcher.Constraint("Horizontal", 1))
sketch8.addConstraint(Sketcher.Constraint("Vertical", 2))
sketch8.addConstraint(Sketcher.Constraint("Horizontal", 3))
sketch8.addConstraint(Sketcher.Constraint("Vertical", 4))
sketch8.addConstraint(Sketcher.Constraint("Horizontal", 5))
sketch8.addConstraint(Sketcher.Constraint("Vertical", 6))
sketch8.addConstraint(Sketcher.Constraint("Horizontal", 7))
sketch8.addConstraint(Sketcher.Constraint("Vertical", 3, 2, 4, 2))
sketch8.addConstraint(Sketcher.Constraint("Vertical", 2, 2, 5, 2))
sketch8.addConstraint(Sketcher.Constraint("Equal", 2, 4))
sketch8.addConstraint(Sketcher.Constraint("DistanceX", 1, 1, 1, 2, Q("30 in")))
sketch8.addConstraint(Sketcher.Constraint("DistanceY", 0, 2, 0, 1, Q("17 in")))
sketch8.addConstraint(Sketcher.Constraint("DistanceX", -1, 1, 0, 2, Q("176 in")))
sketch8.addConstraint(Sketcher.Constraint("DistanceY", -1, 1, 0, 2, Q("42 in")))
sketch8.addConstraint(Sketcher.Constraint("DistanceY", -1, 1, 4, 2, Q("24 in")))
pocket6 = body.newObject("PartDesign::Pocket", "Pocket005")
pocket6.Profile = sketch8
pocket6.Length = Q("3 in")

sketch9 = body.newObject("Sketcher::SketchObject", "Sketch008")
sketch9.AttachmentSupport = (doc.getObject("YZ_Plane"), [""])
sketch9.MapMode = "FlatFace"
add_polygon(sketch9, [(2286, 1498.6), (2286, 1066.8), (4445, 1066.8), (4445, 1498.6)])
add_polygon(sketch9, [(2286, 1041.4), (2286, 609.6), (4445, 609.6), (4445, 1041.4)])
sketch9.addConstraint(Sketcher.Constraint("Vertical", 0))
sketch9.addConstraint(Sketcher.Constraint("Horizontal", 1))
sketch9.addConstraint(Sketcher.Constraint("Vertical", 2))
sketch9.addConstraint(Sketcher.Constraint("Horizontal", 3))
sketch9.addConstraint(Sketcher.Constraint("Vertical", 4))
sketch9.addConstraint(Sketcher.Constraint("Horizontal", 5))
sketch9.addConstraint(Sketcher.Constraint("Vertical", 6))
sketch9.addConstraint(Sketcher.Constraint("Horizontal", 7))
sketch9.addConstraint(Sketcher.Constraint("Vertical", 3, 2, 4, 2))
sketch9.addConstraint(Sketcher.Constraint("Vertical", 2, 2, 5, 2))
sketch9.addConstraint(Sketcher.Constraint("Equal", 2, 4))
sketch9.addConstraint(Sketcher.Constraint("DistanceX", 1, 1, 1, 2, Q("85 in")))
sketch9.addConstraint(Sketcher.Constraint("DistanceY", 0, 2, 0, 1, Q("17 in")))
sketch9.addConstraint(Sketcher.Constraint("DistanceX", -1, 1, 0, 2, Q("90 in")))
sketch9.addConstraint(Sketcher.Constraint("DistanceY", -1, 1, 0, 2, Q("42 in")))
sketch9.addConstraint(Sketcher.Constraint("DistanceY", -1, 1, 4, 2, Q("24 in")))
pocket7 = body.newObject("PartDesign::Pocket", "Pocket006")
pocket7.Profile = sketch9
pocket7.Length = Q("3 in")

sketch10 = body.newObject("Sketcher::SketchObject", "Sketch009")
sketch10.AttachmentSupport = (doc.getObject("XZ_Plane"), [""])
sketch10.MapMode = "FlatFace"
sketch10.AttachmentOffset = App.Placement(Vector(0, 0, -175 * 25.4), App.Rotation())
add_polygon(sketch10, [(0, 1498.6), (0, 1066.8), (1752.6, 1066.8), (1752.6, 1498.6)])
add_polygon(sketch10, [(0, 1041.4), (0, 609.6), (1752.6, 609.6), (1752.6, 1041.4)])
sketch10.addConstraint(Sketcher.Constraint("Vertical", 0))
sketch10.addConstraint(Sketcher.Constraint("Horizontal", 1))
sketch10.addConstraint(Sketcher.Constraint("Vertical", 2))
sketch10.addConstraint(Sketcher.Constraint("Horizontal", 3))
sketch10.addConstraint(Sketcher.Constraint("Vertical", 4))
sketch10.addConstraint(Sketcher.Constraint("Horizontal", 5))
sketch10.addConstraint(Sketcher.Constraint("Vertical", 6))
sketch10.addConstraint(Sketcher.Constraint("Horizontal", 7))
sketch10.addConstraint(Sketcher.Constraint("PointOnObject", 0, 2, -2))
sketch10.addConstraint(Sketcher.Constraint("PointOnObject", 4, 2, -2))
sketch10.addConstraint(Sketcher.Constraint("Vertical", 2, 2, 5, 2))
sketch10.addConstraint(Sketcher.Constraint("Equal", 2, 4))
sketch10.addConstraint(Sketcher.Constraint("DistanceX", 1, 1, 1, 2, Q("69 in")))
sketch10.addConstraint(Sketcher.Constraint("DistanceY", 0, 2, 0, 1, Q("17 in")))
sketch10.addConstraint(Sketcher.Constraint("DistanceY", -1, 1, 0, 2, Q("42 in")))
sketch10.addConstraint(Sketcher.Constraint("DistanceY", -1, 1, 4, 2, Q("24 in")))
pocket8 = body.newObject("PartDesign::Pocket", "Pocket007")
pocket8.Profile = sketch10
pocket8.Length = Q("3 in")

sketch11 = body.newObject("Sketcher::SketchObject", "Sketch010")
sketch11.AttachmentSupport = (doc.getObject("XZ_Plane"), [""])
sketch11.MapMode = "FlatFace"
sketch11.AttachmentOffset = App.Placement(Vector(0, 0, 85 * 25.4), App.Rotation())
add_polygon(sketch11, [(1752.6, 1498.6), (1752.6, 1066.8), (0, 1066.8), (0, 1498.6)])
add_polygon(sketch11, [(1752.6, 1041.4), (1752.6, 609.6), (0, 609.6), (0, 1041.4)])
sketch11.addConstraint(Sketcher.Constraint("Vertical", 0))
sketch11.addConstraint(Sketcher.Constraint("Horizontal", 1))
sketch11.addConstraint(Sketcher.Constraint("Vertical", 2))
sketch11.addConstraint(Sketcher.Constraint("Horizontal", 3))
sketch11.addConstraint(Sketcher.Constraint("Vertical", 4))
sketch11.addConstraint(Sketcher.Constraint("Horizontal", 5))
sketch11.addConstraint(Sketcher.Constraint("Vertical", 6))
sketch11.addConstraint(Sketcher.Constraint("Horizontal", 7))
sketch11.addConstraint(Sketcher.Constraint("PointOnObject", 1, 2, -2))
sketch11.addConstraint(Sketcher.Constraint("PointOnObject", 5, 2, -2))
sketch11.addConstraint(Sketcher.Constraint("Vertical", 3, 2, 4, 2))
sketch11.addConstraint(Sketcher.Constraint("Equal", 2, 4))
sketch11.addConstraint(Sketcher.Constraint("DistanceX", 1, 2, 1, 1, Q("69 in")))
sketch11.addConstraint(Sketcher.Constraint("DistanceY", 0, 2, 0, 1, Q("17 in")))
sketch11.addConstraint(Sketcher.Constraint("DistanceY", -1, 1, 0, 2, Q("42 in")))
sketch11.addConstraint(Sketcher.Constraint("DistanceY", -1, 1, 4, 2, Q("24 in")))
pocket9 = body.newObject("PartDesign::Pocket", "Pocket008")
pocket9.Profile = sketch11
pocket9.Length = Q("2 in")
pocket9.Reversed = True

sketch12 = body.newObject("Sketcher::SketchObject", "Sketch011")
sketch12.AttachmentSupport = (doc.getObject("YZ_Plane"), [""])
sketch12.MapMode = "FlatFace"
sketch12.AttachmentOffset = App.Placement(Vector(0, 0, 70 * 25.4), App.Rotation())
add_polygon(sketch12, [(-2946.4, 1498.6), (-2946.4, 1066.8), (-2184.4, 1066.8), (-2184.4, 1498.6)])
add_polygon(sketch12, [(-2946.4, 1041.4), (-2946.4, 609.6), (-2184.4, 609.6), (-2184.4, 1041.4)])
sketch12.addConstraint(Sketcher.Constraint("Vertical", 0))
sketch12.addConstraint(Sketcher.Constraint("Horizontal", 1))
sketch12.addConstraint(Sketcher.Constraint("Vertical", 2))
sketch12.addConstraint(Sketcher.Constraint("Horizontal", 3))
sketch12.addConstraint(Sketcher.Constraint("Vertical", 4))
sketch12.addConstraint(Sketcher.Constraint("Horizontal", 5))
sketch12.addConstraint(Sketcher.Constraint("Vertical", 6))
sketch12.addConstraint(Sketcher.Constraint("Horizontal", 7))
sketch12.addConstraint(Sketcher.Constraint("Vertical", 3, 2, 4, 2))
sketch12.addConstraint(Sketcher.Constraint("Vertical", 2, 2, 5, 2))
sketch12.addConstraint(Sketcher.Constraint("Equal", 2, 4))
sketch12.addConstraint(Sketcher.Constraint("DistanceX", 1, 1, 1, 2, Q("30 in")))
sketch12.addConstraint(Sketcher.Constraint("DistanceY", 0, 2, 0, 1, Q("17 in")))
sketch12.addConstraint(Sketcher.Constraint("DistanceX", 0, 2, -1, 1, Q("116 in")))
sketch12.addConstraint(Sketcher.Constraint("DistanceY", -1, 1, 0, 2, Q("42 in")))
sketch12.addConstraint(Sketcher.Constraint("DistanceY", -1, 1, 4, 2, Q("24 in")))
pocket10 = body.newObject("PartDesign::Pocket", "Pocket009")
pocket10.Profile = sketch12
pocket10.Length = Q("1 in")

sketch13 = body.newObject("Sketcher::SketchObject", "Sketch012")
sketch13.AttachmentSupport = (doc.getObject("YZ_Plane"), [""])
sketch13.MapMode = "FlatFace"
add_polygon(sketch13, [(-2159, 1498.6), (-2159, 1066.8), (0, 1066.8), (0, 1498.6)])
add_polygon(sketch13, [(-2159, 1041.4), (-2159, 609.6), (0, 609.6), (0, 1041.4)])
sketch13.addConstraint(Sketcher.Constraint("Vertical", 0))
sketch13.addConstraint(Sketcher.Constraint("Horizontal", 1))
sketch13.addConstraint(Sketcher.Constraint("Vertical", 2))
sketch13.addConstraint(Sketcher.Constraint("Horizontal", 3))
sketch13.addConstraint(Sketcher.Constraint("Vertical", 4))
sketch13.addConstraint(Sketcher.Constraint("Horizontal", 5))
sketch13.addConstraint(Sketcher.Constraint("Vertical", 6))
sketch13.addConstraint(Sketcher.Constraint("Horizontal", 7))
sketch13.addConstraint(Sketcher.Constraint("PointOnObject", 1, 2, -2))
sketch13.addConstraint(Sketcher.Constraint("PointOnObject", 5, 2, -2))
sketch13.addConstraint(Sketcher.Constraint("Vertical", 3, 2, 4, 2))
sketch13.addConstraint(Sketcher.Constraint("Equal", 2, 4))
sketch13.addConstraint(Sketcher.Constraint("DistanceX", 1, 1, 1, 2, Q("85 in")))
sketch13.addConstraint(Sketcher.Constraint("DistanceY", 0, 2, 0, 1, Q("17 in")))
sketch13.addConstraint(Sketcher.Constraint("DistanceY", -1, 1, 0, 2, Q("42 in")))
sketch13.addConstraint(Sketcher.Constraint("DistanceY", -1, 1, 4, 2, Q("24 in")))
pocket11 = body.newObject("PartDesign::Pocket", "Pocket010")
pocket11.Profile = sketch13
pocket11.Length = Q("1 in")

sketch14 = body.newObject("Sketcher::SketchObject", "Sketch013")
sketch14.AttachmentSupport = (doc.getObject("XZ_Plane"), [""])
sketch14.MapMode = "FlatFace"
add_polygon(sketch14, [(0, 1498.6), (0, 1066.8), (3733.8, 1066.8), (3733.8, 1498.6)])
add_polygon(sketch14, [(0, 1041.4), (0, 609.6), (3733.8, 609.6), (3733.8, 1041.4)])
sketch14.addConstraint(Sketcher.Constraint("Vertical", 0))
sketch14.addConstraint(Sketcher.Constraint("Horizontal", 1))
sketch14.addConstraint(Sketcher.Constraint("Vertical", 2))
sketch14.addConstraint(Sketcher.Constraint("Horizontal", 3))
sketch14.addConstraint(Sketcher.Constraint("Vertical", 4))
sketch14.addConstraint(Sketcher.Constraint("Horizontal", 5))
sketch14.addConstraint(Sketcher.Constraint("Vertical", 6))
sketch14.addConstraint(Sketcher.Constraint("Horizontal", 7))
sketch14.addConstraint(Sketcher.Constraint("PointOnObject", 0, 2, -2))
sketch14.addConstraint(Sketcher.Constraint("PointOnObject", 4, 2, -2))
sketch14.addConstraint(Sketcher.Constraint("Vertical", 2, 2, 5, 2))
sketch14.addConstraint(Sketcher.Constraint("Equal", 2, 4))
sketch14.addConstraint(Sketcher.Constraint("DistanceX", 1, 1, 1, 2, Q("147 in")))
sketch14.addConstraint(Sketcher.Constraint("DistanceY", 0, 2, 0, 1, Q("17 in")))
sketch14.addConstraint(Sketcher.Constraint("DistanceY", -1, 1, 0, 2, Q("42 in")))
sketch14.addConstraint(Sketcher.Constraint("DistanceY", -1, 1, 4, 2, Q("24 in")))
pocket12 = body.newObject("PartDesign::Pocket", "Pocket011")
pocket12.Profile = sketch14
pocket12.Length = Q("1 in")

doc.recompute()
